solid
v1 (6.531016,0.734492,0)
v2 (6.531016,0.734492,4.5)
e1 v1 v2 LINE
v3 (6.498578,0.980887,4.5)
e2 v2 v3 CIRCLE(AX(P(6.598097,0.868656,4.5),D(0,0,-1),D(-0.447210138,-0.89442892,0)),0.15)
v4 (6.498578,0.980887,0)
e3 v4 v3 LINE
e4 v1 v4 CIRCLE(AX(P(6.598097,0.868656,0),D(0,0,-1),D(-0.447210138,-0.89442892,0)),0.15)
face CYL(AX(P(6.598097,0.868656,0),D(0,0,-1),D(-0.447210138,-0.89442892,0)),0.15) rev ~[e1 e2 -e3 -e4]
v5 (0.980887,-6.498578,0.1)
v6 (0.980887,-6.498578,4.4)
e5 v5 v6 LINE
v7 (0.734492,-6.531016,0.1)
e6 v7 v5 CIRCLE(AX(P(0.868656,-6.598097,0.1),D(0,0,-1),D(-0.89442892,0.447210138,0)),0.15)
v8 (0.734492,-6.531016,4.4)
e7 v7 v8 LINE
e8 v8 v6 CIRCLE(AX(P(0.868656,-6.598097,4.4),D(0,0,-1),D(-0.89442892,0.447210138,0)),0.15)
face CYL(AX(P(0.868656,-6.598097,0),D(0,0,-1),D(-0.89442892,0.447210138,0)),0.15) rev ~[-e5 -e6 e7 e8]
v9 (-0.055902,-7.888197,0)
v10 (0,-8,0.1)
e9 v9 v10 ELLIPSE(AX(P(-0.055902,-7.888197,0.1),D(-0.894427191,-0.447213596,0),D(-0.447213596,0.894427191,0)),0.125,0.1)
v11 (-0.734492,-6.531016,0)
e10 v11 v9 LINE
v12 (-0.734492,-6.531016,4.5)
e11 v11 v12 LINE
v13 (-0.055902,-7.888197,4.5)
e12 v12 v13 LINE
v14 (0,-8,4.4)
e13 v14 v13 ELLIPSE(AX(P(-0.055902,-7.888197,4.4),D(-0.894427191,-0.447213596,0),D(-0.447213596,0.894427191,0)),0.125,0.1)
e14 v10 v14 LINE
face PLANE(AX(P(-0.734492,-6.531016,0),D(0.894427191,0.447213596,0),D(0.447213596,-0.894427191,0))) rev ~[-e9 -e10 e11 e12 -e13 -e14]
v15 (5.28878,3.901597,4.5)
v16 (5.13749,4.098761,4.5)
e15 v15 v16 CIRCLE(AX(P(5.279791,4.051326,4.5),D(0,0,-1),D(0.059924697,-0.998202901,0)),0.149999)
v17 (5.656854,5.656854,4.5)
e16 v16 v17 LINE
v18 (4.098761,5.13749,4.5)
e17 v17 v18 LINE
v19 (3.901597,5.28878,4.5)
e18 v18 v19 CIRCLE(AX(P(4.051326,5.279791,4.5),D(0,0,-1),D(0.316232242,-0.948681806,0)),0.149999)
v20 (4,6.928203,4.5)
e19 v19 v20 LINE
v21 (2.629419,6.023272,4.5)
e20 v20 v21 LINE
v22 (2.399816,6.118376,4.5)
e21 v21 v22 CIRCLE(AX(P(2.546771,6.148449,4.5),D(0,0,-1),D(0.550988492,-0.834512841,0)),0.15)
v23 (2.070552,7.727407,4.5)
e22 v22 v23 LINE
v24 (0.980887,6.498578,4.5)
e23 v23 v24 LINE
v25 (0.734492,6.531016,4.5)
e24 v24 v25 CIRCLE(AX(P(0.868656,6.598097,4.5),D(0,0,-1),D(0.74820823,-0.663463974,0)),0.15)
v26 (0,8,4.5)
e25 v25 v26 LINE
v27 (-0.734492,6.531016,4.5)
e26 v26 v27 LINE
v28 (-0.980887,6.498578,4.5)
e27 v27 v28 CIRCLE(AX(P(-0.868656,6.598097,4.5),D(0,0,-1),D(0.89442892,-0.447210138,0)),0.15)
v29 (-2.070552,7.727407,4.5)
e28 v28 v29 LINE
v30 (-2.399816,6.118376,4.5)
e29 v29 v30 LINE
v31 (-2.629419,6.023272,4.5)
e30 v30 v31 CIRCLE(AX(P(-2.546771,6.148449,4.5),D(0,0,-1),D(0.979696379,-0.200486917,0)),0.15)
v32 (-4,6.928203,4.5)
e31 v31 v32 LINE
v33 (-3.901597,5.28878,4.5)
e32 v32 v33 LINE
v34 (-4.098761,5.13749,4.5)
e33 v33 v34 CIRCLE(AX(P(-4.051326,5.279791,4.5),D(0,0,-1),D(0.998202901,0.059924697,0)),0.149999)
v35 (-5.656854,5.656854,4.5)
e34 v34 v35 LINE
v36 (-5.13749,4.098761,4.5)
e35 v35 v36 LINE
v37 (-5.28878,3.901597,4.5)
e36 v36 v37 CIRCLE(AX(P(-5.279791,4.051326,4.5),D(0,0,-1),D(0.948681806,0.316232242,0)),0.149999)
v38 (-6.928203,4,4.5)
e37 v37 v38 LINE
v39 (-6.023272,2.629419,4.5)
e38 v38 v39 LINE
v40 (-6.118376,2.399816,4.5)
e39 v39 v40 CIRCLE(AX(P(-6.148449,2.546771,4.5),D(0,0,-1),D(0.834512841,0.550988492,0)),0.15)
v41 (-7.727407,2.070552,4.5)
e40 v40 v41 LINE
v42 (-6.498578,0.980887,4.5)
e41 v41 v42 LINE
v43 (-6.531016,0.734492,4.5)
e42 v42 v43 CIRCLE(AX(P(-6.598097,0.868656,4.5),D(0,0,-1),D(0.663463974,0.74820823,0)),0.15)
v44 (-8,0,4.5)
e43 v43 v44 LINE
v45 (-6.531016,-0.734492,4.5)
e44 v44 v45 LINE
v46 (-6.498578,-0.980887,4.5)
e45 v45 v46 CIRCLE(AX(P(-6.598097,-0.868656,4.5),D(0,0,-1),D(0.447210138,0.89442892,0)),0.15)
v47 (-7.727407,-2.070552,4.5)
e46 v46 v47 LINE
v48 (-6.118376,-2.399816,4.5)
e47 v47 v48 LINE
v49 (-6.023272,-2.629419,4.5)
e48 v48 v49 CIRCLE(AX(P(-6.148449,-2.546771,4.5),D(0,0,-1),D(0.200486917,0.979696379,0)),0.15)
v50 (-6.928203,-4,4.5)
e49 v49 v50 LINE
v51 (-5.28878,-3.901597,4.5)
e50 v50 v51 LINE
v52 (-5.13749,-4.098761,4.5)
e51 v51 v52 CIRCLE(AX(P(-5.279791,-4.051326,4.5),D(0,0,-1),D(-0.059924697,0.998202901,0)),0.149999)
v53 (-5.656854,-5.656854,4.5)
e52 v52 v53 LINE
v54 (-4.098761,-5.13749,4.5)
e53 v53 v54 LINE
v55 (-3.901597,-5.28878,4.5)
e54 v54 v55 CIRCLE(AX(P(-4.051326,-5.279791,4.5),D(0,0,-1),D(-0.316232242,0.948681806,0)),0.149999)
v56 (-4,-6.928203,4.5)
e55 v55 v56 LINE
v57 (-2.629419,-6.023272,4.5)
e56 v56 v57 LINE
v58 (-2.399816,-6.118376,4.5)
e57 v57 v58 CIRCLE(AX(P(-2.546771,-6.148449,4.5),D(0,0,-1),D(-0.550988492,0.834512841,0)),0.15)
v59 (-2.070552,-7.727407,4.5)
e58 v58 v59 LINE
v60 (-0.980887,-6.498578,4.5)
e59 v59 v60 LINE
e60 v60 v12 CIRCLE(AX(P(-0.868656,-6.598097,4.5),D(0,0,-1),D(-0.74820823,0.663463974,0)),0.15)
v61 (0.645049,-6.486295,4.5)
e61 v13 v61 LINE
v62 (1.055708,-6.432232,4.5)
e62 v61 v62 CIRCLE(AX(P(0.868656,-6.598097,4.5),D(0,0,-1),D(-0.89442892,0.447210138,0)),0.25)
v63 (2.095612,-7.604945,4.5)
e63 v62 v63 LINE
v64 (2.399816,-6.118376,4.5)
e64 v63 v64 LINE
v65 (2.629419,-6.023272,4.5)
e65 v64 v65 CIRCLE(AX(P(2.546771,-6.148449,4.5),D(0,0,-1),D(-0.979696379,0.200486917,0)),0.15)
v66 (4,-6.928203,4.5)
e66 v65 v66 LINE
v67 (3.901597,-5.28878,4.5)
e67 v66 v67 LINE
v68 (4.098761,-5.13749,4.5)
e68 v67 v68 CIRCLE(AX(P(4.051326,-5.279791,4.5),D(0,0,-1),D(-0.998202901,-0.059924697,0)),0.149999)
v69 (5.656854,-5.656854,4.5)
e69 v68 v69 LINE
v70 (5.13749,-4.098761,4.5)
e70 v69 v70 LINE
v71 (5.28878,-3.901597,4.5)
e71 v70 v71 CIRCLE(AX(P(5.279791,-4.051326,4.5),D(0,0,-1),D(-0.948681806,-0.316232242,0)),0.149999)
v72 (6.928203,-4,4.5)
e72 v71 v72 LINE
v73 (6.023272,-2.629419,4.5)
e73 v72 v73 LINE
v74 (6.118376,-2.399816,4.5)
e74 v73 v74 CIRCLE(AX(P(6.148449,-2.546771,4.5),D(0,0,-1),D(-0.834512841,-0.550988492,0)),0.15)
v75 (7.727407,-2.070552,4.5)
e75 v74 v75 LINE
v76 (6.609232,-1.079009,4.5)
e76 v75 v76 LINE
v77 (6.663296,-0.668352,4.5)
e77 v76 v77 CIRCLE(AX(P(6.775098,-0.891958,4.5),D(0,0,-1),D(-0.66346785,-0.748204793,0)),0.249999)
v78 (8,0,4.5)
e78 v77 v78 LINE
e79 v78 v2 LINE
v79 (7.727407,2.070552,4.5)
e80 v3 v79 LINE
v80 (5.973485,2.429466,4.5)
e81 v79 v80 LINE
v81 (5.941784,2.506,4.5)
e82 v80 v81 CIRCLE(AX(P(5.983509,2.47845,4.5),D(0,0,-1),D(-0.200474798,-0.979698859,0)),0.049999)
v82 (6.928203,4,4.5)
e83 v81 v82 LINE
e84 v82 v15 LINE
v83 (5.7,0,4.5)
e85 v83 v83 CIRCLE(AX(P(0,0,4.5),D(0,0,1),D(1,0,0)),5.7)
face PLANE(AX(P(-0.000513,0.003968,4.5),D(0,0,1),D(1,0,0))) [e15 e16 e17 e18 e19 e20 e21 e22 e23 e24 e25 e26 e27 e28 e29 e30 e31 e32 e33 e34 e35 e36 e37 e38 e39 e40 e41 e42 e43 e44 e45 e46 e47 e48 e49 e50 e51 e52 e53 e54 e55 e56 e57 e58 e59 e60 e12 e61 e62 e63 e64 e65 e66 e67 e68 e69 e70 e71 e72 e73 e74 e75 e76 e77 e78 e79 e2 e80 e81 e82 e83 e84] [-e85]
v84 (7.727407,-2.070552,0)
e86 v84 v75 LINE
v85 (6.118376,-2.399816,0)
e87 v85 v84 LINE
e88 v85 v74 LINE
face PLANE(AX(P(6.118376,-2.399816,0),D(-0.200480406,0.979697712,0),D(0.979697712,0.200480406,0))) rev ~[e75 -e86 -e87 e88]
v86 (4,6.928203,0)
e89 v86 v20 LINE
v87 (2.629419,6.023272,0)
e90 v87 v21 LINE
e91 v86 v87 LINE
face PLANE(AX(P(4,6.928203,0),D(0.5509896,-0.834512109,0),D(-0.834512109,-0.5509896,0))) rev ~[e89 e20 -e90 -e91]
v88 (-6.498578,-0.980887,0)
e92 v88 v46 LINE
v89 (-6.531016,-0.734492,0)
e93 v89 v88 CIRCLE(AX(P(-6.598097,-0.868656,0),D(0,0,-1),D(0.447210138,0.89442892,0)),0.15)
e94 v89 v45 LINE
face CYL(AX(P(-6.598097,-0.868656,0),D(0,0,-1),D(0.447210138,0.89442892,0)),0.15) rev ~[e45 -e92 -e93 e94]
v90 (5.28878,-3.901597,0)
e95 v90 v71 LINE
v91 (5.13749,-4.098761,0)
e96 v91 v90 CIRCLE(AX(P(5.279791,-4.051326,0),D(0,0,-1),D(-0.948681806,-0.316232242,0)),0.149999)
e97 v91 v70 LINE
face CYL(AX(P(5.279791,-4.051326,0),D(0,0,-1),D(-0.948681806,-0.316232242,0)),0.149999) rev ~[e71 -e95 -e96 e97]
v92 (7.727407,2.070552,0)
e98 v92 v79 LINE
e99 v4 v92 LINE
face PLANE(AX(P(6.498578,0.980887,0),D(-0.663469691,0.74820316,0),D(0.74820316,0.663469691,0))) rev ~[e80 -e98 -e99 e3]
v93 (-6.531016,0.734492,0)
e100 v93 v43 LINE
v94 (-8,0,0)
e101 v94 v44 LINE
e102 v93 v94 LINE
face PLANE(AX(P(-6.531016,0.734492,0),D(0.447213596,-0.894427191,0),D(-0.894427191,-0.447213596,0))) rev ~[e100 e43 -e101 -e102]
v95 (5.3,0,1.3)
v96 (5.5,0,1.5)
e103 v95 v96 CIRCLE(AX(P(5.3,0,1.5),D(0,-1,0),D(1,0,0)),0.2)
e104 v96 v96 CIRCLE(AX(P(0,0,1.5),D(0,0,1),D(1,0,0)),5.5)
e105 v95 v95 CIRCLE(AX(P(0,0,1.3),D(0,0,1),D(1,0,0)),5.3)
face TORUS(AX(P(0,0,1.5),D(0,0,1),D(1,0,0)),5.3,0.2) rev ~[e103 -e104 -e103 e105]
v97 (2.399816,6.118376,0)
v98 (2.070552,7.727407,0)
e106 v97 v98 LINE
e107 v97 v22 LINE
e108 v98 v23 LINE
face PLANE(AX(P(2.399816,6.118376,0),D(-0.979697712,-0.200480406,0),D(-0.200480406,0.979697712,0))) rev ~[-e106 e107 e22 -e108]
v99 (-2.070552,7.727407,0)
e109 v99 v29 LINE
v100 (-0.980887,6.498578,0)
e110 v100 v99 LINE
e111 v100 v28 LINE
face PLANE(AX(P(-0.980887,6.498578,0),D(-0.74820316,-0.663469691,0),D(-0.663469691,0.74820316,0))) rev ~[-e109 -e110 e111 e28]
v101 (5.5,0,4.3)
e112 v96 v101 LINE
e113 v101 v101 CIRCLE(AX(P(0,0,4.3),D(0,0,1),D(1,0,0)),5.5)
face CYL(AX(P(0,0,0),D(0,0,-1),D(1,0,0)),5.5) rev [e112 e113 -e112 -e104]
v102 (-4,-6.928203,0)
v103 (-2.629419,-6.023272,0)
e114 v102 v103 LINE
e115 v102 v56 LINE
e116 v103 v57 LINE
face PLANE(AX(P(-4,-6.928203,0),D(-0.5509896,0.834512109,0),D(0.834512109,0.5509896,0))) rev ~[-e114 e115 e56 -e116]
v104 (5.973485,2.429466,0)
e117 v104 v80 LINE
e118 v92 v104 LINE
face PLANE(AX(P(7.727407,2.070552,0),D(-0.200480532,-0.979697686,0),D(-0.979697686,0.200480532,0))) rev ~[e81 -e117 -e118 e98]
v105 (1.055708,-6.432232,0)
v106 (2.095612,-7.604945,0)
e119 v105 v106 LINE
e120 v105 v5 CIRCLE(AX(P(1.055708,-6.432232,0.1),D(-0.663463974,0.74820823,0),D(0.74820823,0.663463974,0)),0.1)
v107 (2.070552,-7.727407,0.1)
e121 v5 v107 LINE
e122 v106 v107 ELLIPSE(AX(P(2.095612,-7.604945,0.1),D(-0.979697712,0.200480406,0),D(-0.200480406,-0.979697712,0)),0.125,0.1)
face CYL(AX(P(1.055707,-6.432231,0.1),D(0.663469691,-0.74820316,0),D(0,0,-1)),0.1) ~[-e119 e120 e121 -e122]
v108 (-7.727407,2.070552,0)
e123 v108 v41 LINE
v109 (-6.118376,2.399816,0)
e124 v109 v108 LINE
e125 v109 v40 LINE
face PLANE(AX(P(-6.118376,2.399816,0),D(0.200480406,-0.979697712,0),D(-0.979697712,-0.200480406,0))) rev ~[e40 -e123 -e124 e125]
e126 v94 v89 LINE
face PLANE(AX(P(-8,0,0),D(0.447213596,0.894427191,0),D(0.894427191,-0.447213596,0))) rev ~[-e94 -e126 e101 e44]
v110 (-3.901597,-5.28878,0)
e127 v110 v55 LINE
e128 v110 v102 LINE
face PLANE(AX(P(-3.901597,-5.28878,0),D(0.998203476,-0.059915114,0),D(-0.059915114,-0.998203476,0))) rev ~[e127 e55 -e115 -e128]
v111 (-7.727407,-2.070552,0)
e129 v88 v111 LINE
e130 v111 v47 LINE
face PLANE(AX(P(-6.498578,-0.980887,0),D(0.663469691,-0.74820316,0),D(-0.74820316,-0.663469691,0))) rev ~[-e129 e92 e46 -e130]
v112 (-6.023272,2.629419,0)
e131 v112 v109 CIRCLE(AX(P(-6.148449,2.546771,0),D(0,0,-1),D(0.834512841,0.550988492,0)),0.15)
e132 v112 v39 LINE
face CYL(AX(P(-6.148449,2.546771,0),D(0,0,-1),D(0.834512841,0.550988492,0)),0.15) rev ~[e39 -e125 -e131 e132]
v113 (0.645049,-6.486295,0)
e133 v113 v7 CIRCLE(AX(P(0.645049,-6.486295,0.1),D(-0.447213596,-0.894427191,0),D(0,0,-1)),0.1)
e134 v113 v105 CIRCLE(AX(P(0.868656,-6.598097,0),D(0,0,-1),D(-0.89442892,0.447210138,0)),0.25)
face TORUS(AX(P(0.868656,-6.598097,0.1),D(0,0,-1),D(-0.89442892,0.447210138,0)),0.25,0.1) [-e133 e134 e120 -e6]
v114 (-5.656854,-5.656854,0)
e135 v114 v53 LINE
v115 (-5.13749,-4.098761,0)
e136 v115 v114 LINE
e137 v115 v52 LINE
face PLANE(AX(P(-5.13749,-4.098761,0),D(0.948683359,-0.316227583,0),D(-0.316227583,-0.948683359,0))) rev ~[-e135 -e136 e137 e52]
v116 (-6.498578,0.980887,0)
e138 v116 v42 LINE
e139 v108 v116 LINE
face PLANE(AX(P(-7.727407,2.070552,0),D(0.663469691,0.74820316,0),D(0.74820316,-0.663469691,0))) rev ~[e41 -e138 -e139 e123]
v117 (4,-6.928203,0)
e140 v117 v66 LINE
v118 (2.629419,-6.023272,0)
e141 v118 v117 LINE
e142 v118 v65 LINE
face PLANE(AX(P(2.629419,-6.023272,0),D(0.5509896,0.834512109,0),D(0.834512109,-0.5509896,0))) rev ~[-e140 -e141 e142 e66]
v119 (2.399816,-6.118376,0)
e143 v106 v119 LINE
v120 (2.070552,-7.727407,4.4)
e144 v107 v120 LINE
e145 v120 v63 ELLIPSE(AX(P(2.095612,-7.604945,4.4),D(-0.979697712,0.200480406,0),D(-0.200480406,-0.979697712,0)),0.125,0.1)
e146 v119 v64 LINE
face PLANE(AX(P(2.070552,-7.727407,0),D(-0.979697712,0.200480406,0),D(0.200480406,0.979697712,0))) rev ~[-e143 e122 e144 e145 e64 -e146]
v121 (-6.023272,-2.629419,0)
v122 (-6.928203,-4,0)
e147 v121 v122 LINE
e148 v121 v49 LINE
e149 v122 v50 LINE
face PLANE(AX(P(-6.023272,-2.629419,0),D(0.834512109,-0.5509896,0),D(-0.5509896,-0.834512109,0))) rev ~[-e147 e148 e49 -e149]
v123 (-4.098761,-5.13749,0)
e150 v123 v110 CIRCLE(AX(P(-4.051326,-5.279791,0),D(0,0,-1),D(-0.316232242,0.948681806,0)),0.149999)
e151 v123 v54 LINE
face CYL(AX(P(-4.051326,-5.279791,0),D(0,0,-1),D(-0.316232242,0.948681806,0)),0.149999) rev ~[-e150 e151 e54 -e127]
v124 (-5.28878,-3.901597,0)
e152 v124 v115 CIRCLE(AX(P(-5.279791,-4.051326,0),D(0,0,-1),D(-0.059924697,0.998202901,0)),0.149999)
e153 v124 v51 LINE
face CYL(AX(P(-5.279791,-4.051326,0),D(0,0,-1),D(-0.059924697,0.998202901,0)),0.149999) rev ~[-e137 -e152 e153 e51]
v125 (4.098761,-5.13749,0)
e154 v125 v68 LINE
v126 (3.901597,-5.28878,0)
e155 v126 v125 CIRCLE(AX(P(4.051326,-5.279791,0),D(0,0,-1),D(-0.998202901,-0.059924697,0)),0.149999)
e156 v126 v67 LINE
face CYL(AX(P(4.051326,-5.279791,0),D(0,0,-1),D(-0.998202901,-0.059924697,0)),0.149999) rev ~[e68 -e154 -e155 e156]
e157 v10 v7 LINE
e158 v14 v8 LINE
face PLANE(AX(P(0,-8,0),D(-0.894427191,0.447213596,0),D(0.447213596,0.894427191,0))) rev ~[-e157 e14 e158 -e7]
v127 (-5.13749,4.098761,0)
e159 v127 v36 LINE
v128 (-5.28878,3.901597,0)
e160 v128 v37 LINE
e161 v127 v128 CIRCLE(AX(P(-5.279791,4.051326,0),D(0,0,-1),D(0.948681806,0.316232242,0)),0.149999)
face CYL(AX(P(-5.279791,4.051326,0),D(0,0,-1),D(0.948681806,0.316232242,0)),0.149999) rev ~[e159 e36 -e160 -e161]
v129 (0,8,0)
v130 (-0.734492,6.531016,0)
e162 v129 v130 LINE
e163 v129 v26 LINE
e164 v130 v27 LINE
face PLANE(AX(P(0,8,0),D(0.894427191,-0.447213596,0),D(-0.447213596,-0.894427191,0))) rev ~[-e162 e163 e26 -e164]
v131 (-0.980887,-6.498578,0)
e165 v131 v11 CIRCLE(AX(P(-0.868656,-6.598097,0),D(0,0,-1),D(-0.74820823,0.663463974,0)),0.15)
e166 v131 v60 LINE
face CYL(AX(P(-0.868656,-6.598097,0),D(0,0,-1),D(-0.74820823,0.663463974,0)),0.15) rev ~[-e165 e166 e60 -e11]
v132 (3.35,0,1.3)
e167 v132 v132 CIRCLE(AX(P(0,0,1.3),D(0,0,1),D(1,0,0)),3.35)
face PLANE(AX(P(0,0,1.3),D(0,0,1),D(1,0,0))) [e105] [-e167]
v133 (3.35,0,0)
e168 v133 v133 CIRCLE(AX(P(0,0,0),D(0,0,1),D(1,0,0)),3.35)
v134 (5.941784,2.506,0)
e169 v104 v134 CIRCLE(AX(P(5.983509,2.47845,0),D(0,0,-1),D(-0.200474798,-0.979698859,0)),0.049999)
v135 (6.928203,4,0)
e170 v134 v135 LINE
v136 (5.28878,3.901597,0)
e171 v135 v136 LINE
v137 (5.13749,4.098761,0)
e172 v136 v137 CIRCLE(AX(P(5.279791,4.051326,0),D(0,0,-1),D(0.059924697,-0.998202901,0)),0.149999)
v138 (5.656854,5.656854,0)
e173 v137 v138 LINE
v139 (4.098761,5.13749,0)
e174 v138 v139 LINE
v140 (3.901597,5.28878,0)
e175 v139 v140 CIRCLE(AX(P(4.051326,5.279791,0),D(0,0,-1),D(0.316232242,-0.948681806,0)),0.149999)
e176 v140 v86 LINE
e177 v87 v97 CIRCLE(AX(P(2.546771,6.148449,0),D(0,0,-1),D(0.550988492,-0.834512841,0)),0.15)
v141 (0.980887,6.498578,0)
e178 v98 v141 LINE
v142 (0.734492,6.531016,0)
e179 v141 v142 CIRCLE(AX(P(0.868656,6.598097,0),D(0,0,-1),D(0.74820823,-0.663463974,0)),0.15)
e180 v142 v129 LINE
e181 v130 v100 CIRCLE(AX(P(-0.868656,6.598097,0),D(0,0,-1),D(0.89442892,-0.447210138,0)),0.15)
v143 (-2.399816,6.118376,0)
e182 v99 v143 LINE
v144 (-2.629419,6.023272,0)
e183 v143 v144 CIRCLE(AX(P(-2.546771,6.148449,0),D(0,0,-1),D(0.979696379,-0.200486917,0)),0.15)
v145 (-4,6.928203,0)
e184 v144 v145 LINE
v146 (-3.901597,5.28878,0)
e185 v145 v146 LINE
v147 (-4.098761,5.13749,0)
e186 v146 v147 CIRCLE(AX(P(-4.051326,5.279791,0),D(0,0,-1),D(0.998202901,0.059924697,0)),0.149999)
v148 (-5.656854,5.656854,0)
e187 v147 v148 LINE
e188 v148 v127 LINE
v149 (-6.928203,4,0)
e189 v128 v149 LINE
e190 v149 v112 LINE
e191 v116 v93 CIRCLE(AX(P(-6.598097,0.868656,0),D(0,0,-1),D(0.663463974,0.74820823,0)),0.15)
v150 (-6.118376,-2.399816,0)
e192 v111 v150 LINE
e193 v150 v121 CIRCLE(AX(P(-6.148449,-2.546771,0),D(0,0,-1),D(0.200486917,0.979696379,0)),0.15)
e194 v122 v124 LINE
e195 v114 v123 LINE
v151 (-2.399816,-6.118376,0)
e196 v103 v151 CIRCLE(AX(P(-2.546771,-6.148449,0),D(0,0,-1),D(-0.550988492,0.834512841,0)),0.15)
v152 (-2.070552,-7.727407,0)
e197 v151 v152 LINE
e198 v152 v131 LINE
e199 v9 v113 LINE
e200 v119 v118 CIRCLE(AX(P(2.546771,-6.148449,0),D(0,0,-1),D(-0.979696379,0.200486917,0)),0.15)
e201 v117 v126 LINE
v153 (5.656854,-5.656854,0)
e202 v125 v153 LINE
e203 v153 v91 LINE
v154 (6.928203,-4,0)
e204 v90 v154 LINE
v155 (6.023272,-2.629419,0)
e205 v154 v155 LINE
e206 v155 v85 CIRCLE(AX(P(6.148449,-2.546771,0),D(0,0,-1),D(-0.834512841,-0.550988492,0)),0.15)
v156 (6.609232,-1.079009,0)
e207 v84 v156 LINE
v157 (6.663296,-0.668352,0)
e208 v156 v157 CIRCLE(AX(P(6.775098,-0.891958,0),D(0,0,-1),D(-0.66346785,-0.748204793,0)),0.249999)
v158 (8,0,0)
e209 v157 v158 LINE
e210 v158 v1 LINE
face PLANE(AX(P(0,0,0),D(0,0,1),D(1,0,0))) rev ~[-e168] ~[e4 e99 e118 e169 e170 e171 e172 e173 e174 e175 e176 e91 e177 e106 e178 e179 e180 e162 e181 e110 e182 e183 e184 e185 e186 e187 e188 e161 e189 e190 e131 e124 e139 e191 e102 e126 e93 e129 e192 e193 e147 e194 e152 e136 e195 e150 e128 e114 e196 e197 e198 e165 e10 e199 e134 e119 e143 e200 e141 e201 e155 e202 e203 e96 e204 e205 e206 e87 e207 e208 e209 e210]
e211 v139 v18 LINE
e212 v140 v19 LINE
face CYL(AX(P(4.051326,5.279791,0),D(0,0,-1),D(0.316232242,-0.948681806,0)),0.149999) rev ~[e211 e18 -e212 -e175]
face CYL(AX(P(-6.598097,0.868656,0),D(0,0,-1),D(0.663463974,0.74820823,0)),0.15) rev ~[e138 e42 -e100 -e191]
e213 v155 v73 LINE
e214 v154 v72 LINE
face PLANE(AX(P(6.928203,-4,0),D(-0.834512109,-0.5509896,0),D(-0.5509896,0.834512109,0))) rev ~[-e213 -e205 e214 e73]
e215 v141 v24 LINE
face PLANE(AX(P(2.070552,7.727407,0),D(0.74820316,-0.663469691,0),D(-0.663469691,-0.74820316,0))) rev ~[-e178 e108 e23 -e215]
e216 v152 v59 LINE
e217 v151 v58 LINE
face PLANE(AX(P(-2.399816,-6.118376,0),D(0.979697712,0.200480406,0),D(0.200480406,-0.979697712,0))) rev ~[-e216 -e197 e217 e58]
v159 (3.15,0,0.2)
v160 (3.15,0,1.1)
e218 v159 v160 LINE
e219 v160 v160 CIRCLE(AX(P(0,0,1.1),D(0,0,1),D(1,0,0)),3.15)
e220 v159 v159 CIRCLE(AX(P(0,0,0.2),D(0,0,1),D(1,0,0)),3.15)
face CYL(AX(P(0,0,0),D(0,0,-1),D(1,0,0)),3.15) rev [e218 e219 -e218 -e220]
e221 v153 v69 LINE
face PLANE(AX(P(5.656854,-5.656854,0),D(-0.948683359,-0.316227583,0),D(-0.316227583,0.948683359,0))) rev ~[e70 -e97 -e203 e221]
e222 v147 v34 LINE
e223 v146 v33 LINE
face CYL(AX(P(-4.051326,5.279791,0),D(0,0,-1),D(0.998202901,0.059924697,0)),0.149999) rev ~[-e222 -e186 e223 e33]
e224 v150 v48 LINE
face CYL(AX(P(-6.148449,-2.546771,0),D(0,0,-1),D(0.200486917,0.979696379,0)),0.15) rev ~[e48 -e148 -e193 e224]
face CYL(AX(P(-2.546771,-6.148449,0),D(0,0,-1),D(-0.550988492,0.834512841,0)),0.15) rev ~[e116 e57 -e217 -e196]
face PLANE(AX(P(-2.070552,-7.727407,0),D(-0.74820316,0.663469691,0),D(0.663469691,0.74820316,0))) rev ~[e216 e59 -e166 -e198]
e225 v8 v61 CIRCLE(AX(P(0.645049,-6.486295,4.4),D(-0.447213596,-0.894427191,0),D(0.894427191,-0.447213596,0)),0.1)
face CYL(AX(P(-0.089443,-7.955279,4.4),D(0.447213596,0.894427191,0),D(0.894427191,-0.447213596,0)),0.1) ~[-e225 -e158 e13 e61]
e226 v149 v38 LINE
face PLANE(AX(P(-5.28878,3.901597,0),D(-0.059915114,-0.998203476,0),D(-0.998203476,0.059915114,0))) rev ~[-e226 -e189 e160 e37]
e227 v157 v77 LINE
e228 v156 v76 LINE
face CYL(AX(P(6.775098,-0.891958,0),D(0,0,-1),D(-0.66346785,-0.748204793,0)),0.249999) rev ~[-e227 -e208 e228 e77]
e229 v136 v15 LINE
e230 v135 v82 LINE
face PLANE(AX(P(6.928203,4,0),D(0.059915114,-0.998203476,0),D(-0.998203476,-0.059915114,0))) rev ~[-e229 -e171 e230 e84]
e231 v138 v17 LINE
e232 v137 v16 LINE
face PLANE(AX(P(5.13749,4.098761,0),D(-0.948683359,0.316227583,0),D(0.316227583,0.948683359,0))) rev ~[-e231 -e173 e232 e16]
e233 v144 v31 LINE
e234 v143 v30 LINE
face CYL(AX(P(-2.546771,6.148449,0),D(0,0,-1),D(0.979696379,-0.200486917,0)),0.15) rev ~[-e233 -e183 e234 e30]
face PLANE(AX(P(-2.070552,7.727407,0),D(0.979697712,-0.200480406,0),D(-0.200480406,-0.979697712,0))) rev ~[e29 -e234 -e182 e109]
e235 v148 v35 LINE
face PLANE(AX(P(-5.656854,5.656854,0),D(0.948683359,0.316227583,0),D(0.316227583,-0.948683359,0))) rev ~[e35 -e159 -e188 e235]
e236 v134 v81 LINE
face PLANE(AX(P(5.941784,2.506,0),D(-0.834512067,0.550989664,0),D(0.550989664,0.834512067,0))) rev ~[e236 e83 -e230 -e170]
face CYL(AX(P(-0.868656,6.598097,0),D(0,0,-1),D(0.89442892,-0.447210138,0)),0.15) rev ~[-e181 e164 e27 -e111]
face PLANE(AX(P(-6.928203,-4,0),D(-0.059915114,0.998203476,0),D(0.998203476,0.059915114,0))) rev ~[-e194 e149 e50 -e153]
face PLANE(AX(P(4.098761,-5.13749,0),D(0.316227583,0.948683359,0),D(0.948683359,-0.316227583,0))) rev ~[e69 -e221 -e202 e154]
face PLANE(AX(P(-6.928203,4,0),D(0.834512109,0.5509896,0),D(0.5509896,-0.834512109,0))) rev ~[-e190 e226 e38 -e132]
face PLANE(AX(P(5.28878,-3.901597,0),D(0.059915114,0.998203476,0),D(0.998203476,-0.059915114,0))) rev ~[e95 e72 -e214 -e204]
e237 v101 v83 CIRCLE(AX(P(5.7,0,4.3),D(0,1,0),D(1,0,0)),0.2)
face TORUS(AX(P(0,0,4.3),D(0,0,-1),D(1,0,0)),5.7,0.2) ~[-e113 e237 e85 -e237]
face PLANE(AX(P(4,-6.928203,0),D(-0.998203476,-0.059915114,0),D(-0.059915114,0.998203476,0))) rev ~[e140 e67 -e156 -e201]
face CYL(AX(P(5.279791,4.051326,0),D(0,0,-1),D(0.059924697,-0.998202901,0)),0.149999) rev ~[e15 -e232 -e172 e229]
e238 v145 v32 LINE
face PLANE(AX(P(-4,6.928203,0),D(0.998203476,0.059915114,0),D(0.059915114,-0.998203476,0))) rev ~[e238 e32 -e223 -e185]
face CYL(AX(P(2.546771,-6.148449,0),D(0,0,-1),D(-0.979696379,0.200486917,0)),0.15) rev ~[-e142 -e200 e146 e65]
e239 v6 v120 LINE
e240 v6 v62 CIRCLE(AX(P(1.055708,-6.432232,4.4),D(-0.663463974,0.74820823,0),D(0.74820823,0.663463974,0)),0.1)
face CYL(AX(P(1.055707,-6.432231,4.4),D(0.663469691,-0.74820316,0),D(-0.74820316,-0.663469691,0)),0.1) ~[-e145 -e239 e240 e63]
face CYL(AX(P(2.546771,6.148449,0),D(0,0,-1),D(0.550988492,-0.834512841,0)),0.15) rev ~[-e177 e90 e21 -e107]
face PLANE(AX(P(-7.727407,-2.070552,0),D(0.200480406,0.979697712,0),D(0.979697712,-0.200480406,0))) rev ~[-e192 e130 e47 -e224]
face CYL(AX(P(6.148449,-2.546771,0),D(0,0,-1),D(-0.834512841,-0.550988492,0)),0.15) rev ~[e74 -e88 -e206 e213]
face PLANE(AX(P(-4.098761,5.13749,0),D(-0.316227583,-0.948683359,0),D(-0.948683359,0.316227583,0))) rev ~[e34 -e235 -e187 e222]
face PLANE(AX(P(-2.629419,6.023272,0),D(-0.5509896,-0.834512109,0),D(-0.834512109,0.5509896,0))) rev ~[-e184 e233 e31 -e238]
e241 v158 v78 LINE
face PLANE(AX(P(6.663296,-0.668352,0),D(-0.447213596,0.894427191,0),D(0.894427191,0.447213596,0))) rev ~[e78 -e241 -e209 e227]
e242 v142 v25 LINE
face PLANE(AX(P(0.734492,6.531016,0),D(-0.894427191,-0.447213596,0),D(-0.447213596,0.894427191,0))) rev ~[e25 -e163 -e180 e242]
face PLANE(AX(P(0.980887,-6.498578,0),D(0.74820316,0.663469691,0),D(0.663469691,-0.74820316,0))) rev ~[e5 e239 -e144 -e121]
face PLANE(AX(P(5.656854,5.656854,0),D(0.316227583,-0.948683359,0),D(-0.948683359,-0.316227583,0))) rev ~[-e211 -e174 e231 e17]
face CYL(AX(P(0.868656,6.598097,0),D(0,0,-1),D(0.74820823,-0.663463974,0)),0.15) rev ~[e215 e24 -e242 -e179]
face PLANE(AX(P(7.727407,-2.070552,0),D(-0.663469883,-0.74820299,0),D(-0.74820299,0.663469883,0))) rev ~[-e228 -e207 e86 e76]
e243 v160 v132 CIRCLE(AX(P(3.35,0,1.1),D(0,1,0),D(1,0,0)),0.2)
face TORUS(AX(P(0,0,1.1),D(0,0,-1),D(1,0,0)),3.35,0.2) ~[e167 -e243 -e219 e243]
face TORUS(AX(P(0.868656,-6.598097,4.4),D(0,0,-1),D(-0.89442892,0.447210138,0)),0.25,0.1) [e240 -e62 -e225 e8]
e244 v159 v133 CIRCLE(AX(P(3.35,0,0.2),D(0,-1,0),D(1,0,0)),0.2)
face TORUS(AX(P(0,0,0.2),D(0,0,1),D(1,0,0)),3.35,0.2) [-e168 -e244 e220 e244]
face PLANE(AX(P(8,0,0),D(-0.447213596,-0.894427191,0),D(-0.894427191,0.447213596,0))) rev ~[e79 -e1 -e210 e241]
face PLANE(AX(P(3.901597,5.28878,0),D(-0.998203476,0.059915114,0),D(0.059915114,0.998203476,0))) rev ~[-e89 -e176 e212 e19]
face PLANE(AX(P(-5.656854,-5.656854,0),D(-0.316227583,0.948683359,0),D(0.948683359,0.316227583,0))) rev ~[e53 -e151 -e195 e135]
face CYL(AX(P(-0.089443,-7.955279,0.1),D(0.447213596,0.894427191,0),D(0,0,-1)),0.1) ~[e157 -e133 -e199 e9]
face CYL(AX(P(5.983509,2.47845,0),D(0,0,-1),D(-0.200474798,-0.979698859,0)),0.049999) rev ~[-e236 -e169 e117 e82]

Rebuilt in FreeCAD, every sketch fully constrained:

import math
import FreeCAD as App
import Part
import Sketcher

V = App.Vector
Q = App.Units.Quantity


def edges_at(feature, points):
    """Names of the edges that pass closest to the given points."""
    edges = feature.Shape.Edges
    near = lambda p: min(range(len(edges)), key=lambda i: edges[i].distToShape(Part.Vertex(*p))[0])
    return sorted({f"Edge{near(p) + 1}" for p in points})

doc = App.newDocument("Part")
body = doc.addObject("PartDesign::Body", "Body")

# Sketch on XY plane
sketch1 = body.newObject("Sketcher::SketchObject", "Sketch")
sketch1.AttachmentSupport = (doc.getObject("XY_Plane"), [""])
sketch1.MapMode = "FlatFace"
sketch1.addGeometry([
    Part.ArcOfCircle(Part.Circle(V(0.868656, 6.598097, 0), V(0, 0, 1), 0.15), math.radians(-153.43517), math.radians(-41.564593)),  # 0
    Part.LineSegment(V(0.734492, 6.531016, 0), V(0, 8, 0)),  # 1
    Part.LineSegment(V(0, 8, 0), V(-0.734492, 6.531016, 0)),  # 2
    Part.ArcOfCircle(Part.Circle(V(-0.868656, 6.598097, 0), V(0, 0, 1), 0.15), math.radians(-138.435407), math.radians(-26.56483)),  # 3
    Part.LineSegment(V(-0.980887, 6.498578, 0), V(-2.070552, 7.727407, 0)),  # 4
    Part.LineSegment(V(-2.070552, 7.727407, 0), V(-2.399816, 6.118376, 0)),  # 5
    Part.ArcOfCircle(Part.Circle(V(-2.546771, 6.148449, 0), V(0, 0, 1), 0.15), math.radians(-123.434854), math.radians(-11.565434)),  # 6
    Part.LineSegment(V(-2.629419, 6.023272, 0), V(-4, 6.928203, 0)),  # 7
    Part.LineSegment(V(-4, 6.928203, 0), V(-3.901597, 5.28878, 0)),  # 8
    Part.ArcOfCircle(Part.Circle(V(-4.051326, 5.279791, 0), V(0, 0, 1), 0.149999), math.radians(-108.435219), math.radians(3.435491)),  # 9
    Part.LineSegment(V(-4.098761, 5.13749, 0), V(-5.656854, 5.656854, 0)),  # 10
    Part.LineSegment(V(-5.656854, 5.656854, 0), V(-5.13749, 4.098761, 0)),  # 11
    Part.ArcOfCircle(Part.Circle(V(-5.279791, 4.051326, 0), V(0, 0, 1), 0.149999), math.radians(-93.435491), math.radians(18.435219)),  # 12
    Part.LineSegment(V(-5.28878, 3.901597, 0), V(-6.928203, 4, 0)),  # 13
    Part.LineSegment(V(-6.928203, 4, 0), V(-6.023272, 2.629419, 0)),  # 14
    Part.ArcOfCircle(Part.Circle(V(-6.148449, 2.546771, 0), V(0, 0, 1), 0.15), math.radians(-78.434566), math.radians(33.434854)),  # 15
    Part.LineSegment(V(-6.118376, 2.399816, 0), V(-7.727407, 2.070552, 0)),  # 16
    Part.LineSegment(V(-7.727407, 2.070552, 0), V(-6.498578, 0.980887, 0)),  # 17
    Part.ArcOfCircle(Part.Circle(V(-6.598097, 0.868656, 0), V(0, 0, 1), 0.15), math.radians(-63.43517), math.radians(48.435407)),  # 18
    Part.LineSegment(V(-6.531016, 0.734492, 0), V(-8, 0, 0)),  # 19
    Part.LineSegment(V(-8, 0, 0), V(-6.531016, -0.734492, 0)),  # 20
    Part.ArcOfCircle(Part.Circle(V(-6.598097, -0.868656, 0), V(0, 0, 1), 0.15), math.radians(-48.435407), math.radians(63.43517)),  # 21
    Part.LineSegment(V(-6.498578, -0.980887, 0), V(-7.727407, -2.070552, 0)),  # 22
    Part.LineSegment(V(-7.727407, -2.070552, 0), V(-6.118376, -2.399816, 0)),  # 23
    Part.ArcOfCircle(Part.Circle(V(-6.148449, -2.546771, 0), V(0, 0, 1), 0.15), math.radians(-33.434854), math.radians(78.434566)),  # 24
    Part.LineSegment(V(-6.023272, -2.629419, 0), V(-6.928203, -4, 0)),  # 25
    Part.LineSegment(V(-6.928203, -4, 0), V(-5.28878, -3.901597, 0)),  # 26
    Part.ArcOfCircle(Part.Circle(V(-5.279791, -4.051326, 0), V(0, 0, 1), 0.149999), math.radians(-18.435219), math.radians(93.435491)),  # 27
    Part.LineSegment(V(-5.13749, -4.098761, 0), V(-5.656854, -5.656854, 0)),  # 28
    Part.LineSegment(V(-5.656854, -5.656854, 0), V(-4.098761, -5.13749, 0)),  # 29
    Part.ArcOfCircle(Part.Circle(V(-4.051326, -5.279791, 0), V(0, 0, 1), 0.149999), math.radians(-3.435491), math.radians(108.435219)),  # 30
    Part.LineSegment(V(-3.901597, -5.28878, 0), V(-4, -6.928203, 0)),  # 31
    Part.LineSegment(V(-4, -6.928203, 0), V(-2.629419, -6.023272, 0)),  # 32
    Part.ArcOfCircle(Part.Circle(V(-2.546771, -6.148449, 0), V(0, 0, 1), 0.15), math.radians(11.565434), math.radians(123.434854)),  # 33
    Part.LineSegment(V(-2.399816, -6.118376, 0), V(-2.070552, -7.727407, 0)),  # 34
    Part.LineSegment(V(-2.070552, -7.727407, 0), V(-0.980887, -6.498578, 0)),  # 35
    Part.ArcOfCircle(Part.Circle(V(-0.868656, -6.598097, 0), V(0, 0, 1), 0.15), math.radians(26.56483), math.radians(138.435407)),  # 36
    Part.LineSegment(V(-0.734492, -6.531016, 0), V(0, -8, 0)),  # 37
    Part.LineSegment(V(0, -8, 0), V(0.734492, -6.531016, 0)),  # 38
    Part.ArcOfCircle(Part.Circle(V(0.868656, -6.598097, 0), V(0, 0, 1), 0.15), math.radians(41.564593), math.radians(153.43517)),  # 39
    Part.LineSegment(V(0.980887, -6.498578, 0), V(2.070552, -7.727407, 0)),  # 40
    Part.LineSegment(V(2.070552, -7.727407, 0), V(2.399816, -6.118376, 0)),  # 41
    Part.ArcOfCircle(Part.Circle(V(2.546771, -6.148449, 0), V(0, 0, 1), 0.15), math.radians(56.565146), math.radians(168.434566)),  # 42
    Part.LineSegment(V(2.629419, -6.023272, 0), V(4, -6.928203, 0)),  # 43
    Part.LineSegment(V(4, -6.928203, 0), V(3.901597, -5.28878, 0)),  # 44
    Part.ArcOfCircle(Part.Circle(V(4.051326, -5.279791, 0), V(0, 0, 1), 0.149999), math.radians(71.564781), math.radians(183.435491)),  # 45
    Part.LineSegment(V(4.098761, -5.13749, 0), V(5.656854, -5.656854, 0)),  # 46
    Part.LineSegment(V(5.656854, -5.656854, 0), V(5.13749, -4.098761, 0)),  # 47
    Part.ArcOfCircle(Part.Circle(V(5.279791, -4.051326, 0), V(0, 0, 1), 0.149999), math.radians(86.564509), math.radians(198.435219)),  # 48
    Part.LineSegment(V(5.28878, -3.901597, 0), V(6.928203, -4, 0)),  # 49
    Part.LineSegment(V(6.928203, -4, 0), V(6.023272, -2.629419, 0)),  # 50
    Part.ArcOfCircle(Part.Circle(V(6.148449, -2.546771, 0), V(0, 0, 1), 0.15), math.radians(101.565434), math.radians(213.434854)),  # 51
    Part.LineSegment(V(6.118376, -2.399816, 0), V(7.727407, -2.070552, 0)),  # 52
    Part.LineSegment(V(7.727407, -2.070552, 0), V(6.609232, -1.079009, 0)),  # 53
    Part.ArcOfCircle(Part.Circle(V(6.775098, -0.891958, 0), V(0, 0, 1), 0.249999), math.radians(116.564896), math.radians(228.43511)),  # 54
    Part.LineSegment(V(6.663296, -0.668352, 0), V(8, 0, 0)),  # 55
    Part.LineSegment(V(8, 0, 0), V(6.531016, 0.734492, 0)),  # 56
    Part.ArcOfCircle(Part.Circle(V(6.598097, 0.868656, 0), V(0, 0, 1), 0.15), math.radians(131.564593), math.radians(243.43517)),  # 57
    Part.LineSegment(V(6.498578, 0.980887, 0), V(7.727407, 2.070552, 0)),  # 58
    Part.LineSegment(V(7.727407, 2.070552, 0), V(5.973485, 2.429466, 0)),  # 59
    Part.ArcOfCircle(Part.Circle(V(5.983509, 2.47845, 0), V(0, 0, 1), 0.049999), math.radians(146.564187), math.radians(258.435275)),  # 60
    Part.LineSegment(V(5.941784, 2.506, 0), V(6.928203, 4, 0)),  # 61
    Part.LineSegment(V(6.928203, 4, 0), V(5.28878, 3.901597, 0)),  # 62
    Part.ArcOfCircle(Part.Circle(V(5.279791, 4.051326, 0), V(0, 0, 1), 0.149999), math.radians(161.564781), math.radians(273.435491)),  # 63
    Part.LineSegment(V(5.13749, 4.098761, 0), V(5.656854, 5.656854, 0)),  # 64
    Part.LineSegment(V(5.656854, 5.656854, 0), V(4.098761, 5.13749, 0)),  # 65
    Part.ArcOfCircle(Part.Circle(V(4.051326, 5.279791, 0), V(0, 0, 1), 0.149999), math.radians(176.564509), math.radians(288.435219)),  # 66
    Part.LineSegment(V(3.901597, 5.28878, 0), V(4, 6.928203, 0)),  # 67
    Part.LineSegment(V(4, 6.928203, 0), V(2.629419, 6.023272, 0)),  # 68
    Part.ArcOfCircle(Part.Circle(V(2.546771, 6.148449, 0), V(0, 0, 1), 0.15), math.radians(-168.434566), math.radians(-56.565146)),  # 69
    Part.LineSegment(V(2.399816, 6.118376, 0), V(2.070552, 7.727407, 0)),  # 70
    Part.LineSegment(V(2.070552, 7.727407, 0), V(0.980887, 6.498578, 0)),  # 71
    Part.Circle(V(0, 0, 0), V(0, 0, 1), 5.5),  # 72
], False)
sketch1.addConstraint([
    Sketcher.Constraint("Coincident", 0, 1, 1, 1),
    Sketcher.Constraint("Coincident", 1, 2, 2, 1),
    Sketcher.Constraint("Coincident", 2, 2, 3, 2),
    Sketcher.Constraint("Coincident", 3, 1, 4, 1),
    Sketcher.Constraint("Coincident", 4, 2, 5, 1),
    Sketcher.Constraint("Coincident", 5, 2, 6, 2),
    Sketcher.Constraint("Coincident", 6, 1, 7, 1),
    Sketcher.Constraint("Coincident", 7, 2, 8, 1),
    Sketcher.Constraint("Coincident", 8, 2, 9, 2),
    Sketcher.Constraint("Coincident", 9, 1, 10, 1),
    Sketcher.Constraint("Coincident", 10, 2, 11, 1),
    Sketcher.Constraint("Coincident", 11, 2, 12, 2),
    Sketcher.Constraint("Coincident", 12, 1, 13, 1),
    Sketcher.Constraint("Coincident", 13, 2, 14, 1),
    Sketcher.Constraint("Coincident", 14, 2, 15, 2),
    Sketcher.Constraint("Coincident", 15, 1, 16, 1),
    Sketcher.Constraint("Coincident", 16, 2, 17, 1),
    Sketcher.Constraint("Coincident", 17, 2, 18, 2),
    Sketcher.Constraint("Coincident", 18, 1, 19, 1),
    Sketcher.Constraint("Coincident", 19, 2, 20, 1),
    Sketcher.Constraint("Coincident", 20, 2, 21, 2),
    Sketcher.Constraint("Coincident", 21, 1, 22, 1),
    Sketcher.Constraint("Coincident", 22, 2, 23, 1),
    Sketcher.Constraint("Coincident", 23, 2, 24, 2),
    Sketcher.Constraint("Coincident", 24, 1, 25, 1),
    Sketcher.Constraint("Coincident", 25, 2, 26, 1),
    Sketcher.Constraint("Coincident", 26, 2, 27, 2),
    Sketcher.Constraint("Coincident", 27, 1, 28, 1),
    Sketcher.Constraint("Coincident", 28, 2, 29, 1),
    Sketcher.Constraint("Coincident", 29, 2, 30, 2),
    Sketcher.Constraint("Coincident", 30, 1, 31, 1),
    Sketcher.Constraint("Coincident", 31, 2, 32, 1),
    Sketcher.Constraint("Coincident", 32, 2, 33, 2),
    Sketcher.Constraint("Coincident", 33, 1, 34, 1),
    Sketcher.Constraint("Coincident", 34, 2, 35, 1),
    Sketcher.Constraint("Coincident", 35, 2, 36, 2),
    Sketcher.Constraint("Coincident", 36, 1, 37, 1),
    Sketcher.Constraint("Coincident", 37, 2, 38, 1),
    Sketcher.Constraint("Coincident", 38, 2, 39, 2),
    Sketcher.Constraint("Coincident", 39, 1, 40, 1),
    Sketcher.Constraint("Coincident", 40, 2, 41, 1),
    Sketcher.Constraint("Coincident", 41, 2, 42, 2),
    Sketcher.Constraint("Coincident", 42, 1, 43, 1),
    Sketcher.Constraint("Coincident", 43, 2, 44, 1),
    Sketcher.Constraint("Coincident", 44, 2, 45, 2),
    Sketcher.Constraint("Coincident", 45, 1, 46, 1),
    Sketcher.Constraint("Coincident", 46, 2, 47, 1),
    Sketcher.Constraint("Coincident", 47, 2, 48, 2),
    Sketcher.Constraint("Coincident", 48, 1, 49, 1),
    Sketcher.Constraint("Coincident", 49, 2, 50, 1),
    Sketcher.Constraint("Coincident", 50, 2, 51, 2),
    Sketcher.Constraint("Coincident", 51, 1, 52, 1),
    Sketcher.Constraint("Coincident", 52, 2, 53, 1),
    Sketcher.Constraint("Coincident", 53, 2, 54, 2),
    Sketcher.Constraint("Coincident", 54, 1, 55, 1),
    Sketcher.Constraint("Coincident", 55, 2, 56, 1),
    Sketcher.Constraint("Coincident", 56, 2, 57, 2),
    Sketcher.Constraint("Coincident", 57, 1, 58, 1),
    Sketcher.Constraint("Coincident", 58, 2, 59, 1),
    Sketcher.Constraint("Coincident", 59, 2, 60, 2),
    Sketcher.Constraint("Coincident", 60, 1, 61, 1),
    Sketcher.Constraint("Coincident", 61, 2, 62, 1),
    Sketcher.Constraint("Coincident", 62, 2, 63, 2),
    Sketcher.Constraint("Coincident", 63, 1, 64, 1),
    Sketcher.Constraint("Coincident", 64, 2, 65, 1),
    Sketcher.Constraint("Coincident", 65, 2, 66, 2),
    Sketcher.Constraint("Coincident", 66, 1, 67, 1),
    Sketcher.Constraint("Coincident", 67, 2, 68, 1),
    Sketcher.Constraint("Coincident", 68, 2, 69, 2),
    Sketcher.Constraint("Coincident", 69, 1, 70, 1),
    Sketcher.Constraint("Coincident", 70, 2, 71, 1),
    Sketcher.Constraint("Coincident", 71, 2, 0, 2),
    Sketcher.Constraint("Coincident", 72, 3, -1, 1),
    Sketcher.Constraint("PointOnObject", 1, 2, -2),
    Sketcher.Constraint("PointOnObject", 19, 2, -1),
    Sketcher.Constraint("PointOnObject", 37, 2, -2),
    Sketcher.Constraint("PointOnObject", 55, 2, -1),
    Sketcher.Constraint("Diameter", 72, Q("11 mm")),
    Sketcher.Constraint("Radius", 0, Q("0.15 mm")),
    Sketcher.Constraint("Radius", 3, Q("0.15 mm")),
    Sketcher.Constraint("Radius", 6, Q("0.15 mm")),
    Sketcher.Constraint("Radius", 9, Q("0.149999 mm")),
    Sketcher.Constraint("Radius", 12, Q("0.149999 mm")),
    Sketcher.Constraint("Radius", 15, Q("0.15 mm")),
    Sketcher.Constraint("Radius", 18, Q("0.15 mm")),
    Sketcher.Constraint("Radius", 21, Q("0.15 mm")),
    Sketcher.Constraint("Radius", 24, Q("0.15 mm")),
    Sketcher.Constraint("Radius", 27, Q("0.149999 mm")),
    Sketcher.Constraint("Radius", 30, Q("0.149999 mm")),
    Sketcher.Constraint("Radius", 33, Q("0.15 mm")),
    Sketcher.Constraint("Radius", 36, Q("0.15 mm")),
    Sketcher.Constraint("Radius", 39, Q("0.15 mm")),
    Sketcher.Constraint("Radius", 42, Q("0.15 mm")),
    Sketcher.Constraint("Radius", 45, Q("0.149999 mm")),
    Sketcher.Constraint("Radius", 48, Q("0.149999 mm")),
    Sketcher.Constraint("Radius", 51, Q("0.15 mm")),
    Sketcher.Constraint("Radius", 54, Q("0.249999 mm")),
    Sketcher.Constraint("Radius", 57, Q("0.15 mm")),
    Sketcher.Constraint("Radius", 60, Q("0.049999 mm")),
    Sketcher.Constraint("Radius", 63, Q("0.149999 mm")),
    Sketcher.Constraint("Radius", 66, Q("0.149999 mm")),
    Sketcher.Constraint("Radius", 69, Q("0.15 mm")),
    Sketcher.Constraint("DistanceY", -1, 1, 1, 2, Q("8 mm")),
    Sketcher.Constraint("DistanceX", 7, 2, -1, 1, Q("4 mm")),
    Sketcher.Constraint("DistanceY", -1, 1, 13, 2, Q("4 mm")),
    Sketcher.Constraint("DistanceX", 19, 2, -1, 1, Q("8 mm")),
    Sketcher.Constraint("DistanceY", 25, 2, -1, 1, Q("4 mm")),
    Sketcher.Constraint("DistanceX", 31, 2, -1, 1, Q("4 mm")),
    Sketcher.Constraint("DistanceY", 37, 2, -1, 1, Q("8 mm")),
    Sketcher.Constraint("DistanceX", -1, 1, 43, 2, Q("4 mm")),
    Sketcher.Constraint("DistanceY", 49, 2, -1, 1, Q("4 mm")),
    Sketcher.Constraint("DistanceX", -1, 1, 55, 2, Q("8 mm")),
    Sketcher.Constraint("DistanceY", -1, 1, 61, 2, Q("4 mm")),
    Sketcher.Constraint("DistanceX", -1, 1, 67, 2, Q("4 mm")),
    Sketcher.Constraint("DistanceY", -1, 1, 60, 1, Q("2.506 mm")),
    Sketcher.Constraint("DistanceX", -1, 1, 54, 3, Q("6.775098 mm")),
    Sketcher.Constraint("Distance", 53, Q("1.494481 mm")),
    Sketcher.Constraint("Distance", 55, Q("1.494481 mm")),
    Sketcher.Constraint("Distance", 59, Q("1.790269 mm")),
    Sketcher.Constraint("DistanceX", 6, 3, -1, 1, Q("2.546771 mm")),
    Sketcher.Constraint("DistanceY", -1, 1, 6, 3, Q("6.148449 mm")),
    Sketcher.Constraint("DistanceY", -1, 1, 9, 3, Q("5.279791 mm")),
    Sketcher.Constraint("DistanceX", 12, 3, -1, 1, Q("5.279791 mm")),
    Sketcher.Constraint("DistanceX", 15, 3, -1, 1, Q("6.148449 mm")),
    Sketcher.Constraint("DistanceY", -1, 1, 15, 3, Q("2.546771 mm")),
    Sketcher.Constraint("DistanceX", 24, 3, -1, 1, Q("6.148449 mm")),
    Sketcher.Constraint("DistanceY", 24, 3, -1, 1, Q("2.546771 mm")),
    Sketcher.Constraint("DistanceX", 27, 3, -1, 1, Q("5.279791 mm")),
    Sketcher.Constraint("DistanceY", 30, 3, -1, 1, Q("5.279791 mm")),
    Sketcher.Constraint("DistanceX", 33, 3, -1, 1, Q("2.546771 mm")),
    Sketcher.Constraint("DistanceY", 33, 3, -1, 1, Q("6.148449 mm")),
    Sketcher.Constraint("DistanceX", -1, 1, 42, 3, Q("2.546771 mm")),
    Sketcher.Constraint("DistanceY", 42, 3, -1, 1, Q("6.148449 mm")),
    Sketcher.Constraint("DistanceY", 45, 3, -1, 1, Q("5.279791 mm")),
    Sketcher.Constraint("DistanceX", -1, 1, 48, 3, Q("5.279791 mm")),
    Sketcher.Constraint("DistanceX", -1, 1, 51, 3, Q("6.148449 mm")),
    Sketcher.Constraint("DistanceY", 51, 3, -1, 1, Q("2.546771 mm")),
    Sketcher.Constraint("DistanceY", 54, 3, -1, 1, Q("0.891958 mm")),
    Sketcher.Constraint("DistanceX", -1, 1, 60, 3, Q("5.983509 mm")),
    Sketcher.Constraint("DistanceY", -1, 1, 60, 3, Q("2.47845 mm")),
    Sketcher.Constraint("DistanceX", -1, 1, 63, 3, Q("5.279791 mm")),
    Sketcher.Constraint("DistanceY", -1, 1, 66, 3, Q("5.279791 mm")),
    Sketcher.Constraint("DistanceX", -1, 1, 69, 3, Q("2.546771 mm")),
    Sketcher.Constraint("DistanceY", -1, 1, 69, 3, Q("6.148449 mm")),
    Sketcher.Constraint("DistanceX", -1, 1, 0, 1, Q("0.734492 mm")),
    Sketcher.Constraint("DistanceX", 6, 1, -1, 1, Q("2.629419 mm")),
    Sketcher.Constraint("DistanceY", -1, 1, 8, 2, Q("5.28878 mm")),
    Sketcher.Constraint("DistanceX", 9, 1, -1, 1, Q("4.098761 mm")),
    Sketcher.Constraint("DistanceY", -1, 1, 9, 1, Q("5.13749 mm")),
    Sketcher.Constraint("DistanceX", 11, 2, -1, 1, Q("5.13749 mm")),
    Sketcher.Constraint("DistanceY", -1, 1, 11, 2, Q("4.098761 mm")),
    Sketcher.Constraint("DistanceX", 12, 1, -1, 1, Q("5.28878 mm")),
    Sketcher.Constraint("DistanceY", -1, 1, 14, 2, Q("2.629419 mm")),
    Sketcher.Constraint("DistanceX", 17, 2, -1, 1, Q("6.498578 mm")),
    Sketcher.Constraint("DistanceY", -1, 1, 18, 1, Q("0.734492 mm")),
    Sketcher.Constraint("DistanceY", 24, 1, -1, 1, Q("2.629419 mm")),
    Sketcher.Constraint("DistanceX", 26, 2, -1, 1, Q("5.28878 mm")),
    Sketcher.Constraint("DistanceX", 27, 1, -1, 1, Q("5.13749 mm")),
    Sketcher.Constraint("DistanceY", 27, 1, -1, 1, Q("4.098761 mm")),
    Sketcher.Constraint("DistanceX", 29, 2, -1, 1, Q("4.098761 mm")),
    Sketcher.Constraint("DistanceY", 29, 2, -1, 1, Q("5.13749 mm")),
    Sketcher.Constraint("DistanceY", 30, 1, -1, 1, Q("5.28878 mm")),
    Sketcher.Constraint("DistanceX", 32, 2, -1, 1, Q("2.629419 mm")),
    Sketcher.Constraint("DistanceY", 35, 2, -1, 1, Q("6.498578 mm")),
    Sketcher.Constraint("DistanceX", 36, 1, -1, 1, Q("0.734492 mm")),
    Sketcher.Constraint("DistanceX", -1, 1, 42, 1, Q("2.629419 mm")),
    Sketcher.Constraint("DistanceY", 44, 2, -1, 1, Q("5.28878 mm")),
    Sketcher.Constraint("DistanceX", -1, 1, 45, 1, Q("4.098761 mm")),
    Sketcher.Constraint("DistanceY", 45, 1, -1, 1, Q("5.13749 mm")),
    Sketcher.Constraint("DistanceX", -1, 1, 47, 2, Q("5.13749 mm")),
    Sketcher.Constraint("DistanceY", 47, 2, -1, 1, Q("4.098761 mm")),
    Sketcher.Constraint("DistanceX", -1, 1, 48, 1, Q("5.28878 mm")),
    Sketcher.Constraint("DistanceY", 50, 2, -1, 1, Q("2.629419 mm")),
    Sketcher.Constraint("DistanceY", 53, 2, -1, 1, Q("1.079009 mm")),
    Sketcher.Constraint("DistanceX", -1, 1, 62, 2, Q("5.28878 mm")),
    Sketcher.Constraint("DistanceX", -1, 1, 63, 1, Q("5.13749 mm")),
    Sketcher.Constraint("DistanceY", -1, 1, 63, 1, Q("4.098761 mm")),
    Sketcher.Constraint("DistanceX", -1, 1, 65, 2, Q("4.098761 mm")),
    Sketcher.Constraint("DistanceY", -1, 1, 65, 2, Q("5.13749 mm")),
    Sketcher.Constraint("DistanceY", -1, 1, 66, 1, Q("5.28878 mm")),
    Sketcher.Constraint("DistanceX", -1, 1, 68, 2, Q("2.629419 mm")),
    Sketcher.Constraint("DistanceY", -1, 1, 71, 2, Q("6.498578 mm")),
    Sketcher.Constraint("Distance", 1, Q("1.642374 mm")),
    Sketcher.Constraint("Distance", 2, Q("1.642374 mm")),
    Sketcher.Constraint("Distance", 4, Q("1.642373 mm")),
    Sketcher.Constraint("Distance", 5, Q("1.642375 mm")),
    Sketcher.Constraint("Distance", 7, Q("1.642374 mm")),
    Sketcher.Constraint("Distance", 10, Q("1.642374 mm")),
    Sketcher.Constraint("Distance", 11, Q("1.642374 mm")),
    Sketcher.Constraint("Distance", 13, Q("1.642374 mm")),
    Sketcher.Constraint("Distance", 16, Q("1.642375 mm")),
    Sketcher.Constraint("Distance", 17, Q("1.642373 mm")),
    Sketcher.Constraint("Distance", 19, Q("1.642374 mm")),
    Sketcher.Constraint("Distance", 20, Q("1.642374 mm")),
    Sketcher.Constraint("Distance", 22, Q("1.642373 mm")),
    Sketcher.Constraint("Distance", 23, Q("1.642375 mm")),
    Sketcher.Constraint("Distance", 25, Q("1.642374 mm")),
    Sketcher.Constraint("Distance", 28, Q("1.642374 mm")),
    Sketcher.Constraint("Distance", 29, Q("1.642374 mm")),
    Sketcher.Constraint("Distance", 31, Q("1.642374 mm")),
    Sketcher.Constraint("Distance", 34, Q("1.642375 mm")),
    Sketcher.Constraint("Distance", 35, Q("1.642373 mm")),
    Sketcher.Constraint("Distance", 37, Q("1.642374 mm")),
    Sketcher.Constraint("Distance", 38, Q("1.642374 mm")),
    Sketcher.Constraint("Distance", 40, Q("1.642373 mm")),
    Sketcher.Constraint("Distance", 41, Q("1.642375 mm")),
    Sketcher.Constraint("Distance", 43, Q("1.642374 mm")),
    Sketcher.Constraint("Distance", 46, Q("1.642374 mm")),
    Sketcher.Constraint("Distance", 47, Q("1.642374 mm")),
    Sketcher.Constraint("Distance", 49, Q("1.642374 mm")),
    Sketcher.Constraint("Distance", 52, Q("1.642375 mm")),
    Sketcher.Constraint("Distance", 56, Q("1.642374 mm")),
    Sketcher.Constraint("Distance", 58, Q("1.642373 mm")),
    Sketcher.Constraint("Distance", 61, Q("1.790268 mm")),
    Sketcher.Constraint("Distance", 64, Q("1.642374 mm")),
    Sketcher.Constraint("Distance", 65, Q("1.642374 mm")),
    Sketcher.Constraint("Distance", 67, Q("1.642374 mm")),
    Sketcher.Constraint("Distance", 70, Q("1.642375 mm")),
    Sketcher.Constraint("Distance", 71, Q("1.642373 mm")),
    Sketcher.Constraint("DistanceX", -1, 1, 0, 3, Q("0.868656 mm")),
    Sketcher.Constraint("DistanceX", 3, 3, -1, 1, Q("0.868656 mm")),
    Sketcher.Constraint("DistanceY", -1, 1, 3, 3, Q("6.598097 mm")),
    Sketcher.Constraint("DistanceX", 18, 3, -1, 1, Q("6.598097 mm")),
    Sketcher.Constraint("DistanceX", 21, 3, -1, 1, Q("6.598097 mm")),
    Sketcher.Constraint("DistanceY", 21, 3, -1, 1, Q("0.868656 mm")),
    Sketcher.Constraint("DistanceX", 36, 3, -1, 1, Q("0.868656 mm")),
    Sketcher.Constraint("DistanceX", -1, 1, 39, 3, Q("0.868656 mm")),
    Sketcher.Constraint("DistanceY", 39, 3, -1, 1, Q("6.598097 mm")),
    Sketcher.Constraint("DistanceX", -1, 1, 57, 3, Q("6.598097 mm")),
    Sketcher.Constraint("DistanceY", -1, 1, 57, 3, Q("0.868656 mm")),
    Sketcher.Constraint("DistanceX", 3, 1, -1, 1, Q("0.980887 mm")),
    Sketcher.Constraint("DistanceX", 4, 2, -1, 1, Q("2.070552 mm")),
    Sketcher.Constraint("DistanceX", 15, 1, -1, 1, Q("6.118376 mm")),
    Sketcher.Constraint("DistanceX", 21, 1, -1, 1, Q("6.498578 mm")),
    Sketcher.Constraint("DistanceX", 22, 2, -1, 1, Q("7.727407 mm")),
    Sketcher.Constraint("DistanceX", 33, 1, -1, 1, Q("2.399816 mm")),
    Sketcher.Constraint("DistanceX", -1, 1, 39, 1, Q("0.980887 mm")),
    Sketcher.Constraint("DistanceX", -1, 1, 40, 2, Q("2.070552 mm")),
    Sketcher.Constraint("DistanceX", -1, 1, 51, 1, Q("6.118376 mm")),
    Sketcher.Constraint("DistanceX", -1, 1, 57, 1, Q("6.498578 mm")),
    Sketcher.Constraint("DistanceX", -1, 1, 58, 2, Q("7.727407 mm")),
    Sketcher.Constraint("DistanceX", -1, 1, 69, 1, Q("2.399816 mm")),
])
pad1 = body.newObject("PartDesign::Pad", "Pad")
pad1.Profile = sketch1
pad1.Length = 4.5

# Sketch on XY plane
sketch2 = body.newObject("Sketcher::SketchObject", "Sketch001")
sketch2.AttachmentSupport = (doc.getObject("XY_Plane"), [""])
sketch2.MapMode = "FlatFace"
sketch2.addGeometry([
    Part.Circle(V(0, 0, 0), V(0, 0, 1), 5.5),
    Part.Circle(V(0, 0, 0), V(0, 0, 1), 3.15),
], False)
sketch2.addConstraint([
    Sketcher.Constraint("Coincident", 0, 3, -1, 1),
    Sketcher.Constraint("Coincident", 1, 3, -1, 1),
    Sketcher.Constraint("Diameter", 0, Q("11 mm")),
    Sketcher.Constraint("Diameter", 1, Q("6.3 mm")),
])
pad2 = body.newObject("PartDesign::Pad", "Pad001")
pad2.Profile = sketch2
pad2.Length = 1.3
doc.recompute()

fillet = body.newObject("PartDesign::Fillet", "Fillet")
fillet.Base = (pad2, edges_at(pad2, [
    (-3.15, 0, 1.3),
    (-5.5, 0, 1.3),
    (-5.5, 0, 4.5),
    (-3.15, 0, 0),
]))
fillet.Radius = 0.2
doc.recompute()

fillet2 = body.newObject("PartDesign::Fillet", "Fillet001")
fillet2.Base = (fillet, edges_at(fillet, [(0.367, -7.266, 4.5), (0.367, -7.266, 0)]))
fillet2.Radius = 0.1

doc.recompute()
